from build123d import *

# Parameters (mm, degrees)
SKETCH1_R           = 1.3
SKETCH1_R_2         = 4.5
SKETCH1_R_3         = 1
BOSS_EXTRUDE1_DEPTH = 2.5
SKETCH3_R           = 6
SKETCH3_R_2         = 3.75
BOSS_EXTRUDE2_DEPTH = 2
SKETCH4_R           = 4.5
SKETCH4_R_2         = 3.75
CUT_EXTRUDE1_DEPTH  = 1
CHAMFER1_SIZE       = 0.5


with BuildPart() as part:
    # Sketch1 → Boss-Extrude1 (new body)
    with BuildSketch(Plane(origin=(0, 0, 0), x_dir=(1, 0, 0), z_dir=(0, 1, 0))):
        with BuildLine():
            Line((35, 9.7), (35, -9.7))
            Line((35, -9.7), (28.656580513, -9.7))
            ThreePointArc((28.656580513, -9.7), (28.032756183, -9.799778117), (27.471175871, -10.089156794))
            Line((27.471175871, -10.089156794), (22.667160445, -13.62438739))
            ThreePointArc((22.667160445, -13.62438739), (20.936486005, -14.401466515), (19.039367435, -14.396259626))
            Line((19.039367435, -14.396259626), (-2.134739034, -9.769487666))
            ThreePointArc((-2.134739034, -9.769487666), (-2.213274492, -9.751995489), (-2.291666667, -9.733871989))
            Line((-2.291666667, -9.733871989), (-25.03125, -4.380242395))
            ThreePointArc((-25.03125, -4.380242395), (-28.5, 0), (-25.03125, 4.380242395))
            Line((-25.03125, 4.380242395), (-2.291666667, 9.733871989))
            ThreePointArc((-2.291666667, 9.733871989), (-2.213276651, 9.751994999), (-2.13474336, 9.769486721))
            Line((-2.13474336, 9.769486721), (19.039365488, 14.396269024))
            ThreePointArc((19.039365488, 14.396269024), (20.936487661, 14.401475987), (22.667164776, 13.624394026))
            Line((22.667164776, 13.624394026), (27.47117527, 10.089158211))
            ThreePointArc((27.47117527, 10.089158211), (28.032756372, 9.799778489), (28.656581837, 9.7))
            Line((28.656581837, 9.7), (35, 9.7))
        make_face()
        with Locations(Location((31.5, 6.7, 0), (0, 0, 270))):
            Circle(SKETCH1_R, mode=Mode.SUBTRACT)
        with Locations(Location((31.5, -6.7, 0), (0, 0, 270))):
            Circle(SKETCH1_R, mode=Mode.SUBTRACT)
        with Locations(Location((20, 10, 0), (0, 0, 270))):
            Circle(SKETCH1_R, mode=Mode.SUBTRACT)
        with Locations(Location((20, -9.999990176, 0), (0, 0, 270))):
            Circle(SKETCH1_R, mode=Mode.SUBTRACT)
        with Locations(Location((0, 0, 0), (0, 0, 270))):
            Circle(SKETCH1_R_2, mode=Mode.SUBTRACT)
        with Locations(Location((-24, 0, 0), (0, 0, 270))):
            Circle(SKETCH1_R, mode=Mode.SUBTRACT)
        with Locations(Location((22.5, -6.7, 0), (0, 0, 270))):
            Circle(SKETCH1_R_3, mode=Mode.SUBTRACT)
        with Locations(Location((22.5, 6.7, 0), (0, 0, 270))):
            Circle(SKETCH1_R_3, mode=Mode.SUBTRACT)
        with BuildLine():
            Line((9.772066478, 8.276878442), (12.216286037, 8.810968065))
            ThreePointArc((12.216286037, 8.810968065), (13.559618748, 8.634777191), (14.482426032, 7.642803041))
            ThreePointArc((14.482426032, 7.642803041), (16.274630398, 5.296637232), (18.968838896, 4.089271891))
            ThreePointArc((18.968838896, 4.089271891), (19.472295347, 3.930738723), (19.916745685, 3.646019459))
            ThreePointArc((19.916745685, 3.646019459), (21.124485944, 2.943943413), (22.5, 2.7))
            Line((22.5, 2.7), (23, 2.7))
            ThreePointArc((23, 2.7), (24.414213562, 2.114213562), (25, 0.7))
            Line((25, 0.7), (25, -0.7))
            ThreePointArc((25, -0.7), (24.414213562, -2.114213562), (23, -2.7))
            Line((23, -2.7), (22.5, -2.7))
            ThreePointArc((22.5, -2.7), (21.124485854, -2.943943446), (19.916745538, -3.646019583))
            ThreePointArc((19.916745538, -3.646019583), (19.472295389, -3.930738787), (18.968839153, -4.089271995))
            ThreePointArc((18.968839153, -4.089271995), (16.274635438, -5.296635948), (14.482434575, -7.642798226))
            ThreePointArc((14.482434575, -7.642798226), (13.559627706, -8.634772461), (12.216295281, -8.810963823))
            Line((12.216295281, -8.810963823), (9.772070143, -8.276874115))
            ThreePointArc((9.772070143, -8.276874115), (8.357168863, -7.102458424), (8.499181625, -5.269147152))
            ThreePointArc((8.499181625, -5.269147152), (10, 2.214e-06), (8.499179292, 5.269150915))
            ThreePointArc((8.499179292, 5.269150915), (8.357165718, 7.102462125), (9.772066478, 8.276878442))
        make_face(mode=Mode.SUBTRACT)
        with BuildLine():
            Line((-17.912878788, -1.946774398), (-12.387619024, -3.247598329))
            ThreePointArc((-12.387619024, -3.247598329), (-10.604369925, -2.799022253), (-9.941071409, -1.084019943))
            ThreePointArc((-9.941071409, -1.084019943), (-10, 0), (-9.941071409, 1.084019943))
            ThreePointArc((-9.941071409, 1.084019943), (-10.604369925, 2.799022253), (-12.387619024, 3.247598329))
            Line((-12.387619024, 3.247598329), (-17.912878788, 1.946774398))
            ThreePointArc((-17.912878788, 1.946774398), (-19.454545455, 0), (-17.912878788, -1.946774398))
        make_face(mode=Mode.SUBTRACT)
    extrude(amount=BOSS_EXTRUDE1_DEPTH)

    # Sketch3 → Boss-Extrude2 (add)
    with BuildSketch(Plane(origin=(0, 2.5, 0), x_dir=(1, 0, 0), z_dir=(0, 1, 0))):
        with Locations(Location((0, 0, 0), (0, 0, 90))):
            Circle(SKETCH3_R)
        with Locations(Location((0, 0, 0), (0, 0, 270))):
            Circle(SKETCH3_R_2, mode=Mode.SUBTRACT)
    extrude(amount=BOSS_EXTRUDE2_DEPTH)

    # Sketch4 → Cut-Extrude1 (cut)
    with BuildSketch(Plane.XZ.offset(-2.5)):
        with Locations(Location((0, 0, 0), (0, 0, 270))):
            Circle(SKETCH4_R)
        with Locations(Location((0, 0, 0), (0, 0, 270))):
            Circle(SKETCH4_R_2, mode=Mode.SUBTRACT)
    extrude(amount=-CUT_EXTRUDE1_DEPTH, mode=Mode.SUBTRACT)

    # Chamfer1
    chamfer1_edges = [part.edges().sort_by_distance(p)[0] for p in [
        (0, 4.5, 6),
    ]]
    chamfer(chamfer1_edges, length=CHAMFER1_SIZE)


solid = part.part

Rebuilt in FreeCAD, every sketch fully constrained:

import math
import FreeCAD as App
import Part
import Sketcher
Q = App.Units.Quantity


def edges_at(feature, points):
    """Names of the edges that pass closest to the given points."""
    edges = feature.Shape.Edges
    near = lambda p: min(range(len(edges)), key=lambda i: edges[i].distToShape(Part.Vertex(*p))[0])
    return sorted({f"Edge{near(p) + 1}" for p in points})

doc = App.newDocument("Part")
params = doc.addObject("Spreadsheet::Sheet", "Params")
for row, (alias, value) in enumerate([
    ("sketch1_diameter", "2 mm"),
    ("sketch1_diameter2", "9 mm"),
    ("sketch1_radius", "2 mm"),
    ("sketch1_radius2", "6 mm"),
    ("sketch1_radius3", "4 mm"),
    ("pad1_length", "2.5 mm"),
    ("sketch2_diameter", "12 mm"),
    ("sketch2_diameter2", "7.5 mm"),
    ("pad2_length", "2 mm"),
    ("sketch3_diameter", "9 mm"),
    ("sketch3_diameter2", "7.5 mm"),
    ("pocket1_length", "1 mm"),
    ("chamfer_size", "0.5 mm"),
], start=1):
    params.set(f"A{row}", alias)
    params.set(f"B{row}", "=" + value)
    params.setAlias(f"B{row}", alias)

body = doc.addObject("PartDesign::Body", "Body")

# Sketch on XZ plane
sketch1 = doc.addObject("Sketcher::SketchObject", "Sketch")
body.addObject(sketch1)
sketch1.AttachmentSupport = (doc.XZ_Plane, [""])
sketch1.MapMode = "FlatFace"
sketch1.addGeometry(Part.LineSegment(App.Vector(35, 9.7, 0), App.Vector(35, -9.7, 0)), False)
sketch1.addGeometry(Part.LineSegment(App.Vector(35, -9.7, 0), App.Vector(28.66, -9.7, 0)), False)
sketch1.addGeometry(Part.ArcOfCircle(Part.Circle(App.Vector(28.66, -11.7, 0), App.Vector(0, 0, 1), 2), math.radians(90), math.radians(126)), False)
sketch1.addGeometry(Part.LineSegment(App.Vector(27.47, -10.09, 0), App.Vector(22.67, -13.62, 0)), False)
sketch1.addGeometry(Part.ArcOfCircle(Part.Circle(App.Vector(20, -10, 0), App.Vector(0, 0, 1), 4.5), math.radians(-102), math.radians(-54)), False)
sketch1.addGeometry(Part.LineSegment(App.Vector(19.04, -14.4, 0), App.Vector(-2.13, -9.77, 0)), False)
sketch1.addGeometry(Part.ArcOfCircle(Part.Circle(App.Vector(0, 0, 0), App.Vector(0, 0, 1), 10), math.radians(-103.25), math.radians(-102.33)), False)
sketch1.addGeometry(Part.LineSegment(App.Vector(-2.29, -9.73, 0), App.Vector(-25.03, -4.38, 0)), False)
sketch1.addGeometry(Part.ArcOfCircle(Part.Circle(App.Vector(-24, 0, 0), App.Vector(0, 0, 1), 4.5), math.radians(103), math.radians(257)), False)
sketch1.addGeometry(Part.LineSegment(App.Vector(-25.03, 4.38, 0), App.Vector(-2.29, 9.73, 0)), False)
sketch1.addGeometry(Part.ArcOfCircle(Part.Circle(App.Vector(0, 0, 0), App.Vector(0, 0, 1), 10), math.radians(102.33), math.radians(103.25)), False)
sketch1.addGeometry(Part.LineSegment(App.Vector(-2.13, 9.77, 0), App.Vector(19.04, 14.4, 0)), False)
sketch1.addGeometry(Part.ArcOfCircle(Part.Circle(App.Vector(20, 10, 0), App.Vector(0, 0, 1), 4.5), math.radians(54), math.radians(102)), False)
sketch1.addGeometry(Part.LineSegment(App.Vector(22.67, 13.62, 0), App.Vector(27.47, 10.09, 0)), False)
sketch1.addGeometry(Part.ArcOfCircle(Part.Circle(App.Vector(28.66, 11.7, 0), App.Vector(0, 0, 1), 2), math.radians(-126), math.radians(-90)), False)
sketch1.addGeometry(Part.LineSegment(App.Vector(28.66, 9.7, 0), App.Vector(35, 9.7, 0)), False)
sketch1.addGeometry(Part.Circle(App.Vector(20, 10, 0), App.Vector(0, 0, 1), 1.3), False)
sketch1.addGeometry(Part.Circle(App.Vector(31.5, 6.7, 0), App.Vector(0, 0, 1), 1.3), False)
sketch1.addGeometry(Part.Circle(App.Vector(22.5, 6.7, 0), App.Vector(0, 0, 1), 1), False)
sketch1.addGeometry(Part.LineSegment(App.Vector(9.77, -8.28, 0), App.Vector(12.22, -8.81, 0)), False)
sketch1.addGeometry(Part.ArcOfCircle(Part.Circle(App.Vector(12.64, -6.86, 0), App.Vector(0, 0, 1), 2), math.radians(-102), math.radians(-23)), False)
sketch1.addGeometry(Part.ArcOfCircle(Part.Circle(App.Vector(20, -10, 0), App.Vector(0, 0, 1), 6), math.radians(100), math.radians(157)), False)
sketch1.addGeometry(Part.ArcOfCircle(Part.Circle(App.Vector(18.63, -2.12, 0), App.Vector(0, 0, 1), 2), math.radians(-80), math.radians(-50)), False)
sketch1.addGeometry(Part.ArcOfCircle(Part.Circle(App.Vector(22.5, -6.7, 0), App.Vector(0, 0, 1), 4), math.radians(90), math.radians(130)), False)
sketch1.addGeometry(Part.LineSegment(App.Vector(22.5, -2.7, 0), App.Vector(23, -2.7, 0)), False)
sketch1.addGeometry(Part.ArcOfCircle(Part.Circle(App.Vector(23, -0.7, 0), App.Vector(0, 0, 1), 2), math.radians(-90), math.radians(0)), False)
sketch1.addGeometry(Part.LineSegment(App.Vector(25, -0.7, 0), App.Vector(25, 0.7, 0)), False)
sketch1.addGeometry(Part.ArcOfCircle(Part.Circle(App.Vector(23, 0.7, 0), App.Vector(0, 0, 1), 2), math.radians(0), math.radians(90)), False)
sketch1.addGeometry(Part.LineSegment(App.Vector(23, 2.7, 0), App.Vector(22.5, 2.7, 0)), False)
sketch1.addGeometry(Part.ArcOfCircle(Part.Circle(App.Vector(22.5, 6.7, 0), App.Vector(0, 0, 1), 4), math.radians(-130), math.radians(-90)), False)
sketch1.addGeometry(Part.ArcOfCircle(Part.Circle(App.Vector(18.63, 2.12, 0), App.Vector(0, 0, 1), 2), math.radians(50), math.radians(80)), False)
sketch1.addGeometry(Part.ArcOfCircle(Part.Circle(App.Vector(20, 10, 0), App.Vector(0, 0, 1), 6), math.radians(-157), math.radians(-100)), False)
sketch1.addGeometry(Part.ArcOfCircle(Part.Circle(App.Vector(12.64, 6.86, 0), App.Vector(0, 0, 1), 2), math.radians(23), math.radians(102)), False)
sketch1.addGeometry(Part.LineSegment(App.Vector(12.22, 8.81, 0), App.Vector(9.77, 8.28, 0)), False)
sketch1.addGeometry(Part.ArcOfCircle(Part.Circle(App.Vector(10.2, 6.32, 0), App.Vector(0, 0, 1), 2), math.radians(102), math.radians(212)), False)
sketch1.addGeometry(Part.ArcOfCircle(Part.Circle(App.Vector(0, 0, 0), App.Vector(0, 0, 1), 10), math.radians(-32), math.radians(32)), False)
sketch1.addGeometry(Part.ArcOfCircle(Part.Circle(App.Vector(10.2, -6.32, 0), App.Vector(0, 0, 1), 2), math.radians(148), math.radians(258)), False)
sketch1.addGeometry(Part.Circle(App.Vector(0, 0, 0), App.Vector(0, 0, 1), 4.5), False)
sketch1.addGeometry(Part.ArcOfCircle(Part.Circle(App.Vector(-17.45, 0, 0), App.Vector(0, 0, 1), 2), math.radians(103), math.radians(257)), False)
sketch1.addGeometry(Part.LineSegment(App.Vector(-17.91, -1.95, 0), App.Vector(-12.39, -3.25, 0)), False)
sketch1.addGeometry(Part.ArcOfCircle(Part.Circle(App.Vector(-11.93, -1.3, 0), App.Vector(0, 0, 1), 2), math.radians(-103), math.radians(6)), False)
sketch1.addGeometry(Part.ArcOfCircle(Part.Circle(App.Vector(0, 0, 0), App.Vector(0, 0, 1), 10), math.radians(173.78), math.radians(186.22)), False)
sketch1.addGeometry(Part.ArcOfCircle(Part.Circle(App.Vector(-11.93, 1.3, 0), App.Vector(0, 0, 1), 2), math.radians(-6), math.radians(103)), False)
sketch1.addGeometry(Part.LineSegment(App.Vector(-12.39, 3.25, 0), App.Vector(-17.91, 1.95, 0)), False)
sketch1.addGeometry(Part.Circle(App.Vector(-24, 0, 0), App.Vector(0, 0, 1), 1.3), False)
sketch1.addGeometry(Part.Circle(App.Vector(31.5, -6.7, 0), App.Vector(0, 0, 1), 1.3), False)
sketch1.addGeometry(Part.Circle(App.Vector(22.5, -6.7, 0), App.Vector(0, 0, 1), 1), False)
sketch1.addGeometry(Part.Circle(App.Vector(20, -10, 0), App.Vector(0, 0, 1), 1.3), False)
sketch1.addConstraint(Sketcher.Constraint("Coincident", 0, 2, 1, 1))
sketch1.addConstraint(Sketcher.Constraint("Tangent", 1, 2, 2, 1))
sketch1.addConstraint(Sketcher.Constraint("Tangent", 2, 2, 3, 1))
sketch1.addConstraint(Sketcher.Constraint("Tangent", 3, 2, 4, 2))
sketch1.addConstraint(Sketcher.Constraint("Tangent", 4, 1, 5, 1))
sketch1.addConstraint(Sketcher.Constraint("Tangent", 5, 2, 6, 2))
sketch1.addConstraint(Sketcher.Constraint("Tangent", 6, 1, 7, 1))
sketch1.addConstraint(Sketcher.Constraint("Tangent", 7, 2, 8, 2))
sketch1.addConstraint(Sketcher.Constraint("Tangent", 8, 1, 9, 1))
sketch1.addConstraint(Sketcher.Constraint("Tangent", 9, 2, 10, 2))
sketch1.addConstraint(Sketcher.Constraint("Tangent", 10, 1, 11, 1))
sketch1.addConstraint(Sketcher.Constraint("Tangent", 11, 2, 12, 2))
sketch1.addConstraint(Sketcher.Constraint("Tangent", 12, 1, 13, 1))
sketch1.addConstraint(Sketcher.Constraint("Tangent", 13, 2, 14, 1))
sketch1.addConstraint(Sketcher.Constraint("Tangent", 14, 2, 15, 1))
sketch1.addConstraint(Sketcher.Constraint("Coincident", 15, 2, 0, 1))
sketch1.addConstraint(Sketcher.Constraint("Tangent", 19, 2, 20, 1))
sketch1.addConstraint(Sketcher.Constraint("Tangent", 20, 2, 21, 2))
sketch1.addConstraint(Sketcher.Constraint("Tangent", 21, 1, 22, 1))
sketch1.addConstraint(Sketcher.Constraint("Tangent", 22, 2, 23, 2))
sketch1.addConstraint(Sketcher.Constraint("Tangent", 23, 1, 24, 1))
sketch1.addConstraint(Sketcher.Constraint("Tangent", 24, 2, 25, 1))
sketch1.addConstraint(Sketcher.Constraint("Tangent", 25, 2, 26, 1))
sketch1.addConstraint(Sketcher.Constraint("Tangent", 26, 2, 27, 1))
sketch1.addConstraint(Sketcher.Constraint("Tangent", 27, 2, 28, 1))
sketch1.addConstraint(Sketcher.Constraint("Tangent", 28, 2, 29, 2))
sketch1.addConstraint(Sketcher.Constraint("Tangent", 29, 1, 30, 1))
sketch1.addConstraint(Sketcher.Constraint("Tangent", 30, 2, 31, 2))
sketch1.addConstraint(Sketcher.Constraint("Tangent", 31, 1, 32, 1))
sketch1.addConstraint(Sketcher.Constraint("Tangent", 32, 2, 33, 1))
sketch1.addConstraint(Sketcher.Constraint("Tangent", 33, 2, 34, 1))
sketch1.addConstraint(Sketcher.Constraint("Tangent", 34, 2, 35, 2))
sketch1.addConstraint(Sketcher.Constraint("Tangent", 35, 1, 36, 1))
sketch1.addConstraint(Sketcher.Constraint("Tangent", 36, 2, 19, 1))
sketch1.addConstraint(Sketcher.Constraint("Tangent", 38, 2, 39, 1))
sketch1.addConstraint(Sketcher.Constraint("Tangent", 39, 2, 40, 1))
sketch1.addConstraint(Sketcher.Constraint("Tangent", 40, 2, 41, 2))
sketch1.addConstraint(Sketcher.Constraint("Tangent", 41, 1, 42, 1))
sketch1.addConstraint(Sketcher.Constraint("Tangent", 42, 2, 43, 1))
sketch1.addConstraint(Sketcher.Constraint("Tangent", 43, 2, 38, 1))
sketch1.addConstraint(Sketcher.Constraint("Vertical", 0))
sketch1.addConstraint(Sketcher.Constraint("Horizontal", 1))
sketch1.addConstraint(Sketcher.Constraint("Horizontal", 15))
sketch1.addConstraint(Sketcher.Constraint("Horizontal", 24))
sketch1.addConstraint(Sketcher.Constraint("Vertical", 26))
sketch1.addConstraint(Sketcher.Constraint("Horizontal", 28))
sketch1.addConstraint(Sketcher.Constraint("Coincident", 35, 3, -1, 1))
sketch1.addConstraint(Sketcher.Constraint("Coincident", 37, 3, -1, 1))
sketch1.addConstraint(Sketcher.Constraint("Coincident", 41, 3, -1, 1))
sketch1.addConstraint(Sketcher.Constraint("Coincident", 16, 3, 12, 3))
sketch1.addConstraint(Sketcher.Constraint("Coincident", 21, 3, 4, 3))
sketch1.addConstraint(Sketcher.Constraint("Coincident", 29, 3, 18, 3))
sketch1.addConstraint(Sketcher.Constraint("Coincident", 31, 3, 12, 3))
sketch1.addConstraint(Sketcher.Constraint("Coincident", 44, 3, 8, 3))
sketch1.addConstraint(Sketcher.Constraint("Coincident", 46, 3, 23, 3))
sketch1.addConstraint(Sketcher.Constraint("Coincident", 47, 3, 4, 3))
sketch1.addConstraint(Sketcher.Constraint("Equal", 4, 8))
sketch1.addConstraint(Sketcher.Constraint("Equal", 8, 12))
sketch1.addConstraint(Sketcher.Constraint("Equal", 2, 14))
sketch1.addConstraint(Sketcher.Constraint("Equal", 16, 17))
sketch1.addConstraint(Sketcher.Constraint("Equal", 14, 20))
sketch1.addConstraint(Sketcher.Constraint("Equal", 20, 22))
sketch1.addConstraint(Sketcher.Constraint("Equal", 22, 25))
sketch1.addConstraint(Sketcher.Constraint("Equal", 25, 27))
sketch1.addConstraint(Sketcher.Constraint("Equal", 23, 29))
sketch1.addConstraint(Sketcher.Constraint("Equal", 27, 30))
sketch1.addConstraint(Sketcher.Constraint("Equal", 30, 32))
sketch1.addConstraint(Sketcher.Constraint("Equal", 32, 34))
sketch1.addConstraint(Sketcher.Constraint("Equal", 34, 36))
sketch1.addConstraint(Sketcher.Constraint("Equal", 12, 37))
sketch1.addConstraint(Sketcher.Constraint("Equal", 36, 38))
sketch1.addConstraint(Sketcher.Constraint("Equal", 38, 40))
sketch1.addConstraint(Sketcher.Constraint("Equal", 35, 41))
sketch1.addConstraint(Sketcher.Constraint("Equal", 40, 42))
sketch1.addConstraint(Sketcher.Constraint("Equal", 17, 44))
sketch1.addConstraint(Sketcher.Constraint("Equal", 44, 45))
sketch1.addConstraint(Sketcher.Constraint("Equal", 18, 46))
sketch1.addConstraint(Sketcher.Constraint("Equal", 45, 47))
sketch1.addConstraint(Sketcher.Constraint("Symmetric", 6, 3, 10, 3, -1, 1))
sketch1.addConstraint(Sketcher.Constraint("Symmetric", 4, 3, 12, 3, -1))
sketch1.addConstraint(Sketcher.Constraint("Symmetric", 2, 3, 14, 3, -1))
sketch1.addConstraint(Sketcher.Constraint("Symmetric", 18, 3, 23, 3, -1))
sketch1.addConstraint(Sketcher.Constraint("Symmetric", 20, 3, 32, 3, -1))
sketch1.addConstraint(Sketcher.Constraint("Symmetric", 17, 3, 45, 3, -1))
sketch1.addConstraint(Sketcher.Constraint("Symmetric", 7, 2, 8, 1, -1))
sketch1.addConstraint(Sketcher.Constraint("Symmetric", 39, 2, 42, 2, -1))
sketch1.addConstraint(Sketcher.Constraint("Parallel", 5, 19))
sketch1.addConstraint(Sketcher.Constraint("Parallel", 11, 33))
sketch1.addConstraint(Sketcher.Constraint("Parallel", 7, 39))
sketch1.addConstraint(Sketcher.Constraint("Horizontal", 17, 3, 18, 3))
sketch1.addConstraint(Sketcher.Constraint("Vertical", 6, 3, 10, 3))
sketch1.addConstraint(Sketcher.Constraint("Diameter", 18, Q("2 mm")))
sketch1.addConstraint(Sketcher.Constraint("Diameter", 37, Q("9 mm")))
sketch1.addConstraint(Sketcher.Constraint("Radius", 2, Q("2 mm")))
sketch1.addConstraint(Sketcher.Constraint("Radius", 21, Q("6 mm")))
sketch1.addConstraint(Sketcher.Constraint("Radius", 23, Q("4 mm")))
sketch1.addConstraint(Sketcher.Constraint("Radius", 35, Q("10 mm")))
sketch1.addConstraint(Sketcher.Constraint("Diameter", 16, Q("2.6 mm")))
sketch1.addConstraint(Sketcher.Constraint("DistanceX", 24, 1, 24, 2, Q("0.5 mm")))
sketch1.addConstraint(Sketcher.Constraint("DistanceY", 0, 2, 0, 1, Q("19.4 mm")))
sketch1.addConstraint(Sketcher.Constraint("DistanceY", 26, 1, 26, 2, Q("1.4 mm")))
sketch1.addConstraint(Sketcher.Constraint("DistanceX", -1, 1, 4, 3, Q("20 mm")))
sketch1.addConstraint(Sketcher.Constraint("DistanceY", 4, 3, -1, 1, Q("10 mm")))
sketch1.addConstraint(Sketcher.Constraint("DistanceX", 8, 3, -1, 1, Q("24 mm")))
sketch1.addConstraint(Sketcher.Constraint("DistanceX", -1, 1, 25, 3, Q("23 mm")))
sketch1.addConstraint(Sketcher.Constraint("DistanceX", -1, 1, 0, 2, Q("35 mm")))
sketch1.addConstraint(Sketcher.Constraint("DistanceX", -1, 1, 17, 3, Q("31.5 mm")))
sketch1.addConstraint(Sketcher.Constraint("Radius", 6, Q("10.000021 mm")))
sketch1.addConstraint(Sketcher.Constraint("DistanceX", 1, 2, 1, 1, Q("6.343418 mm")))
sketch1.addConstraint(Sketcher.Constraint("DistanceY", -1, 1, 31, 1, Q("7.642798 mm")))
sketch1.addConstraint(Sketcher.Constraint("DistanceY", 39, 2, -1, 1, Q("3.247598 mm")))
sketch1.addConstraint(Sketcher.Constraint("Distance", 19, Q("2.501891 mm")))
sketch1.setExpression("Constraints[91]", "Params.sketch1_diameter")
sketch1.setExpression("Constraints[92]", "Params.sketch1_diameter2")
sketch1.setExpression("Constraints[93]", "Params.sketch1_radius")
sketch1.setExpression("Constraints[94]", "Params.sketch1_radius2")
sketch1.setExpression("Constraints[95]", "Params.sketch1_radius3")
pad1 = doc.addObject("PartDesign::Pad", "Pad")
body.addObject(pad1)
pad1.Profile = sketch1
pad1.setExpression("Length", "Params.pad1_length")
pad1.Reversed = True

# Sketch on XZ plane
sketch2 = doc.addObject("Sketcher::SketchObject", "Sketch001")
body.addObject(sketch2)
sketch2.AttachmentSupport = (doc.XZ_Plane, [""])
sketch2.MapMode = "FlatFace"
sketch2.AttachmentOffset = App.Placement(App.Vector(0, 0, -2.5), App.Rotation())
sketch2.addGeometry(Part.Circle(App.Vector(0, 0, 0), App.Vector(0, 0, 1), 6), False)
sketch2.addGeometry(Part.Circle(App.Vector(0, 0, 0), App.Vector(0, 0, 1), 3.8), False)
sketch2.addConstraint(Sketcher.Constraint("Coincident", 0, 3, -1, 1))
sketch2.addConstraint(Sketcher.Constraint("Coincident", 1, 3, -1, 1))
sketch2.addConstraint(Sketcher.Constraint("Diameter", 0, Q("12 mm")))
sketch2.addConstraint(Sketcher.Constraint("Diameter", 1, Q("7.5 mm")))
sketch2.setExpression("Constraints[2]", "Params.sketch2_diameter")
sketch2.setExpression("Constraints[3]", "Params.sketch2_diameter2")
pad2 = doc.addObject("PartDesign::Pad", "Pad001")
body.addObject(pad2)
pad2.Profile = sketch2
pad2.setExpression("Length", "Params.pad2_length")
pad2.Reversed = True

# Sketch on XZ plane
sketch3 = doc.addObject("Sketcher::SketchObject", "Sketch002")
body.addObject(sketch3)
sketch3.AttachmentSupport = (doc.XZ_Plane, [""])
sketch3.MapMode = "FlatFace"
sketch3.AttachmentOffset = App.Placement(App.Vector(0, 0, -2.5), App.Rotation())
sketch3.addGeometry(Part.Circle(App.Vector(0, 0, 0), App.Vector(0, 0, 1), 4.5), False)
sketch3.addGeometry(Part.Circle(App.Vector(0, 0, 0), App.Vector(0, 0, 1), 3.8), False)
sketch3.addConstraint(Sketcher.Constraint("Coincident", 0, 3, -1, 1))
sketch3.addConstraint(Sketcher.Constraint("Coincident", 1, 3, -1, 1))
sketch3.addConstraint(Sketcher.Constraint("Diameter", 0, Q("9 mm")))
sketch3.addConstraint(Sketcher.Constraint("Diameter", 1, Q("7.5 mm")))
sketch3.setExpression("Constraints[2]", "Params.sketch3_diameter")
sketch3.setExpression("Constraints[3]", "Params.sketch3_diameter2")
pocket1 = doc.addObject("PartDesign::Pocket", "Pocket")
body.addObject(pocket1)
pocket1.Profile = sketch3
pocket1.setExpression("Length", "Params.pocket1_length")
doc.recompute()

chamfer = doc.addObject("PartDesign::Chamfer", "Chamfer")
body.addObject(chamfer)
chamfer.Base = (pocket1, edges_at(pocket1, [(0, 4.5, 6)]))
chamfer.setExpression("Size", "Params.chamfer_size")

doc.recompute()
